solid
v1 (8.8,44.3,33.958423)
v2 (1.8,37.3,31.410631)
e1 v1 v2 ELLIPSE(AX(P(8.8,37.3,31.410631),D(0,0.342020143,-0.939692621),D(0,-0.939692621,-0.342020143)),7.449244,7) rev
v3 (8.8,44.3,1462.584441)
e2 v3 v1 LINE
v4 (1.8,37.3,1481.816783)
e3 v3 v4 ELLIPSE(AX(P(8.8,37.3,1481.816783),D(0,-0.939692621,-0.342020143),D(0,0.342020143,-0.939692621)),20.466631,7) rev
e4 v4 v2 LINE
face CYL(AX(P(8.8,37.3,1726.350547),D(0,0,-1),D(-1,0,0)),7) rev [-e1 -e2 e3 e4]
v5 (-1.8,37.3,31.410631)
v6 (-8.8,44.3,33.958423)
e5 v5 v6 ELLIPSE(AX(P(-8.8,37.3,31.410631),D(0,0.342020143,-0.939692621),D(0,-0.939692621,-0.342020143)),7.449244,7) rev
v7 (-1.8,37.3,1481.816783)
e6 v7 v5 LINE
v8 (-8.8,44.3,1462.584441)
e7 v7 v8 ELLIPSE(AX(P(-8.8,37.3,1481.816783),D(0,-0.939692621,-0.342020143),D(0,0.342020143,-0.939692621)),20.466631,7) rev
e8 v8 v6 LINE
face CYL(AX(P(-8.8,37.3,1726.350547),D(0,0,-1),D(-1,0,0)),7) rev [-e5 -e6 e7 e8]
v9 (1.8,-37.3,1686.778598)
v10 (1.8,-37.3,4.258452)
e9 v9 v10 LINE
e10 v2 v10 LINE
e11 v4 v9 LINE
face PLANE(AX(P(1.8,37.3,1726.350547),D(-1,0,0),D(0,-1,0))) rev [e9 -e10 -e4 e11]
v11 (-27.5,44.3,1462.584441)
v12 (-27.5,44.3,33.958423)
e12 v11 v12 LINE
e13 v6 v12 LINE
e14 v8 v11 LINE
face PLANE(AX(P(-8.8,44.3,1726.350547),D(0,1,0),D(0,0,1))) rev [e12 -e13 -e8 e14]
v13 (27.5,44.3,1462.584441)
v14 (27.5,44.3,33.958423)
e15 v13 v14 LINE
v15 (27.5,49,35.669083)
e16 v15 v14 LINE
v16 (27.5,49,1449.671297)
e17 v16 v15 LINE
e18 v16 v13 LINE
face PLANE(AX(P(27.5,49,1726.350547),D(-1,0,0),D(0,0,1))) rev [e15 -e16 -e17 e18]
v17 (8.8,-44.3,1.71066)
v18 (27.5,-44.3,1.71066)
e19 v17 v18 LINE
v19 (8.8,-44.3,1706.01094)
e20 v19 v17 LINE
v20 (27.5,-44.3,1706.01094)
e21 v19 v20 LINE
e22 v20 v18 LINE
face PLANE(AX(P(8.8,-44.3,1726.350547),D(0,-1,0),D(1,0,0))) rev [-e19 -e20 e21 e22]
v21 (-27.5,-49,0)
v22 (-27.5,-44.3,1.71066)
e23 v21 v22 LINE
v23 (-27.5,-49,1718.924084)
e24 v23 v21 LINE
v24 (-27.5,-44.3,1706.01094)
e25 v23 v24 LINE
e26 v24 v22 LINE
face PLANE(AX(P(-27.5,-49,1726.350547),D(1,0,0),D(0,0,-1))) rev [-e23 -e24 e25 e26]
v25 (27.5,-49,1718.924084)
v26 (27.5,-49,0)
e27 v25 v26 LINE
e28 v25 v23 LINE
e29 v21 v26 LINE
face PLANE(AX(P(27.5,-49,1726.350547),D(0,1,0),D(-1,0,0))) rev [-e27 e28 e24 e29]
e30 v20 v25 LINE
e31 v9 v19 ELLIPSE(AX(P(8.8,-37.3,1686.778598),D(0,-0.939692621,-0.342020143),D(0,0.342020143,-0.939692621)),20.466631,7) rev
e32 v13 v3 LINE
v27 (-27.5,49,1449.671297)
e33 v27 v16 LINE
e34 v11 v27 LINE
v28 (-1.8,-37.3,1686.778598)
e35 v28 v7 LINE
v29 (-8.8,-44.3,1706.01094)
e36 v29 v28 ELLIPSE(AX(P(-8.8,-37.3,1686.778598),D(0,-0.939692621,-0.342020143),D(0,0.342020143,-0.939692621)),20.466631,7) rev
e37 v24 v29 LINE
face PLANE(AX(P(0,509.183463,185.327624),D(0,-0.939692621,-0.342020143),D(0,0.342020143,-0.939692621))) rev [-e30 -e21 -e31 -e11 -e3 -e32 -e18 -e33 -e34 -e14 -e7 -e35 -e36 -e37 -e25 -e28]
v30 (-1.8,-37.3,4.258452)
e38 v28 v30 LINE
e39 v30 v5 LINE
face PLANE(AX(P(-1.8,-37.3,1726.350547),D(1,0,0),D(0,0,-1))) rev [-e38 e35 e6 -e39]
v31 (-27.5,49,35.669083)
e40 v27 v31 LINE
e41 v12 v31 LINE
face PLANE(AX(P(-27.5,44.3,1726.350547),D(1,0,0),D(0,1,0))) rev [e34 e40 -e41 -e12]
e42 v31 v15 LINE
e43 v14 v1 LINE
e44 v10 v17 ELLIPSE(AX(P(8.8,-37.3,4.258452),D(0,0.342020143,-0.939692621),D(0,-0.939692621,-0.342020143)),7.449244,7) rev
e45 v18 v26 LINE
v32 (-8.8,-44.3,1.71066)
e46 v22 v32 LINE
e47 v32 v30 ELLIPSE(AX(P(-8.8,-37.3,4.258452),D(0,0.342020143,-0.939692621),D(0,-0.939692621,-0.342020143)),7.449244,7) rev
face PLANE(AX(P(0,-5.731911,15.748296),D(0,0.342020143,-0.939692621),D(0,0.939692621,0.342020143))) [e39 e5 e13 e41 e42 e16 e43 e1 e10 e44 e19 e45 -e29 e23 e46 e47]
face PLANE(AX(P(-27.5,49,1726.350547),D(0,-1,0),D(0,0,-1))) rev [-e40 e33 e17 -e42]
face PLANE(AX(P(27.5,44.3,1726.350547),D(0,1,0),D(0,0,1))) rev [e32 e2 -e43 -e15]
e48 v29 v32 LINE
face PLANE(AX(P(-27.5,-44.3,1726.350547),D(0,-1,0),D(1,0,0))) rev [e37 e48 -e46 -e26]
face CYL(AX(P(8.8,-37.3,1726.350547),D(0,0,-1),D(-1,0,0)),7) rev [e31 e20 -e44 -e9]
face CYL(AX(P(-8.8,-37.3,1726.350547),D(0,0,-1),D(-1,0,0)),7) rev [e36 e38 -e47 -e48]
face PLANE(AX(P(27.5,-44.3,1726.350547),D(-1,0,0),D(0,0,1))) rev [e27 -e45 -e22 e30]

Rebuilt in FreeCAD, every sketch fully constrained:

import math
import FreeCAD as App
import Part
import Sketcher
Q = App.Units.Quantity


def add_polygon(sketch, points):
    """Adds a closed chain of lines whose ends are joined by coincident constraints."""
    first, n = sketch.GeometryCount, len(points)
    for a, b in zip(points, points[1:] + points[:1]):
        sketch.addGeometry(Part.LineSegment(App.Vector(*a, 0), App.Vector(*b, 0)), False)
    for i in range(n):
        sketch.addConstraint(Sketcher.Constraint("Coincident", first + i, 2, first + (i + 1) % n, 1))

doc = App.newDocument("Part")
body = doc.addObject("PartDesign::Body", "Body")

# Sketch on XY plane
sketch1 = body.newObject("Sketcher::SketchObject", "Sketch")
sketch1.AttachmentSupport = (doc.getObject("XY_Plane"), [""])
sketch1.MapMode = "FlatFace"
sketch1.addGeometry(Part.LineSegment(App.Vector(27.5, 49, 0), App.Vector(-27.5, 49, 0)), False)
sketch1.addGeometry(Part.LineSegment(App.Vector(-27.5, 49, 0), App.Vector(-27.5, 44.3, 0)), False)
sketch1.addGeometry(Part.LineSegment(App.Vector(-27.5, 44.3, 0), App.Vector(-8.8, 44.3, 0)), False)
sketch1.addGeometry(Part.ArcOfCircle(Part.Circle(App.Vector(-8.8, 37.3, 0), App.Vector(0, 0, 1), 7), math.radians(0), math.radians(90)), False)
sketch1.addGeometry(Part.LineSegment(App.Vector(-1.8, 37.3, 0), App.Vector(-1.8, -37.3, 0)), False)
sketch1.addGeometry(Part.ArcOfCircle(Part.Circle(App.Vector(-8.8, -37.3, 0), App.Vector(0, 0, 1), 7), math.radians(-90), math.radians(0)), False)
sketch1.addGeometry(Part.LineSegment(App.Vector(-8.8, -44.3, 0), App.Vector(-27.5, -44.3, 0)), False)
sketch1.addGeometry(Part.LineSegment(App.Vector(-27.5, -44.3, 0), App.Vector(-27.5, -49, 0)), False)
sketch1.addGeometry(Part.LineSegment(App.Vector(-27.5, -49, 0), App.Vector(27.5, -49, 0)), False)
sketch1.addGeometry(Part.LineSegment(App.Vector(27.5, -49, 0), App.Vector(27.5, -44.3, 0)), False)
sketch1.addGeometry(Part.LineSegment(App.Vector(27.5, -44.3, 0), App.Vector(8.8, -44.3, 0)), False)
sketch1.addGeometry(Part.ArcOfCircle(Part.Circle(App.Vector(8.8, -37.3, 0), App.Vector(0, 0, 1), 7), math.radians(-180), math.radians(-90)), False)
sketch1.addGeometry(Part.LineSegment(App.Vector(1.8, -37.3, 0), App.Vector(1.8, 37.3, 0)), False)
sketch1.addGeometry(Part.ArcOfCircle(Part.Circle(App.Vector(8.8, 37.3, 0), App.Vector(0, 0, 1), 7), math.radians(90), math.radians(180)), False)
sketch1.addGeometry(Part.LineSegment(App.Vector(8.8, 44.3, 0), App.Vector(27.5, 44.3, 0)), False)
sketch1.addGeometry(Part.LineSegment(App.Vector(27.5, 44.3, 0), App.Vector(27.5, 49, 0)), False)
sketch1.addConstraint(Sketcher.Constraint("Coincident", 0, 2, 1, 1))
sketch1.addConstraint(Sketcher.Constraint("Coincident", 1, 2, 2, 1))
sketch1.addConstraint(Sketcher.Constraint("Tangent", 2, 2, 3, 2))
sketch1.addConstraint(Sketcher.Constraint("Tangent", 3, 1, 4, 1))
sketch1.addConstraint(Sketcher.Constraint("Tangent", 4, 2, 5, 2))
sketch1.addConstraint(Sketcher.Constraint("Tangent", 5, 1, 6, 1))
sketch1.addConstraint(Sketcher.Constraint("Coincident", 6, 2, 7, 1))
sketch1.addConstraint(Sketcher.Constraint("Coincident", 7, 2, 8, 1))
sketch1.addConstraint(Sketcher.Constraint("Coincident", 8, 2, 9, 1))
sketch1.addConstraint(Sketcher.Constraint("Coincident", 9, 2, 10, 1))
sketch1.addConstraint(Sketcher.Constraint("Tangent", 10, 2, 11, 2))
sketch1.addConstraint(Sketcher.Constraint("Tangent", 11, 1, 12, 1))
sketch1.addConstraint(Sketcher.Constraint("Tangent", 12, 2, 13, 2))
sketch1.addConstraint(Sketcher.Constraint("Tangent", 13, 1, 14, 1))
sketch1.addConstraint(Sketcher.Constraint("Coincident", 14, 2, 15, 1))
sketch1.addConstraint(Sketcher.Constraint("Coincident", 15, 2, 0, 1))
sketch1.addConstraint(Sketcher.Constraint("Horizontal", 0))
sketch1.addConstraint(Sketcher.Constraint("Vertical", 1))
sketch1.addConstraint(Sketcher.Constraint("Horizontal", 2))
sketch1.addConstraint(Sketcher.Constraint("Vertical", 4))
sketch1.addConstraint(Sketcher.Constraint("Horizontal", 6))
sketch1.addConstraint(Sketcher.Constraint("Vertical", 7))
sketch1.addConstraint(Sketcher.Constraint("Horizontal", 8))
sketch1.addConstraint(Sketcher.Constraint("Vertical", 9))
sketch1.addConstraint(Sketcher.Constraint("Horizontal", 10))
sketch1.addConstraint(Sketcher.Constraint("Vertical", 12))
sketch1.addConstraint(Sketcher.Constraint("Horizontal", 14))
sketch1.addConstraint(Sketcher.Constraint("Vertical", 15))
sketch1.addConstraint(Sketcher.Constraint("Equal", 3, 5))
sketch1.addConstraint(Sketcher.Constraint("Equal", 5, 11))
sketch1.addConstraint(Sketcher.Constraint("Equal", 11, 13))
sketch1.addConstraint(Sketcher.Constraint("Symmetric", 3, 3, 11, 3, -1, 1))
sketch1.addConstraint(Sketcher.Constraint("Symmetric", 0, 2, 8, 2, -1, 1))
sketch1.addConstraint(Sketcher.Constraint("Symmetric", 6, 2, 14, 2, -1, 1))
sketch1.addConstraint(Sketcher.Constraint("Symmetric", 6, 2, 9, 2, -2))
sketch1.addConstraint(Sketcher.Constraint("Radius", 3, Q("7 mm")))
sketch1.addConstraint(Sketcher.Constraint("DistanceX", 0, 2, 0, 1, Q("55 mm")))
sketch1.addConstraint(Sketcher.Constraint("DistanceX", 2, 1, 2, 2, Q("18.7 mm")))
sketch1.addConstraint(Sketcher.Constraint("DistanceY", 1, 2, 1, 1, Q("4.7 mm")))
sketch1.addConstraint(Sketcher.Constraint("DistanceY", 4, 2, 4, 1, Q("74.6 mm")))
pad1 = body.newObject("PartDesign::Pad", "Pad")
pad1.Profile = sketch1
pad1.Length = 1726.350547

# Sketch on an angled plane
sketch2 = body.newObject("Sketcher::SketchObject", "Sketch001")
sketch2.Placement = App.Placement(App.Vector(0, -5.731911, 15.748296), App.Rotation(App.Vector(1, 0, 0), App.Vector(0, 0.939692621, 0.342020143), App.Vector(0, -0.342020143, 0.939692621), "ZXY"))
add_polygon(sketch2, [(-105.851229, 254.824321), (-105.851229, -228.762606), (105.851229, -228.762606), (105.851229, 254.824321)])  # lines 0-3
sketch2.addConstraint(Sketcher.Constraint("Vertical", 0))
sketch2.addConstraint(Sketcher.Constraint("Horizontal", 1))
sketch2.addConstraint(Sketcher.Constraint("Vertical", 2))
sketch2.addConstraint(Sketcher.Constraint("Horizontal", 3))
sketch2.addConstraint(Sketcher.Constraint("DistanceX", 1, 1, 1, 2, Q("211.702459 mm")))
sketch2.addConstraint(Sketcher.Constraint("DistanceY", 0, 2, 0, 1, Q("483.586927 mm")))
sketch2.addConstraint(Sketcher.Constraint("DistanceX", 0, 2, -1, 1, Q("105.851229 mm")))
sketch2.addConstraint(Sketcher.Constraint("DistanceY", -1, 1, 2, 2, Q("254.824321 mm")))
pocket1 = body.newObject("PartDesign::Pocket", "Pocket")
pocket1.Profile = sketch2
pocket1.Type = "ThroughAll"

# Sketch on an angled plane
sketch3 = body.newObject("Sketcher::SketchObject", "Sketch002")
sketch3.Placement = App.Placement(App.Vector(0, 511.570282, 186.196355), App.Rotation(App.Vector(1, 0, 0), App.Vector(0, 0.342020143, -0.939692621), App.Vector(0, 0.939692621, 0.342020143), "ZXY"))
add_polygon(sketch3, [(-65.584743, -906.029641), (-65.584743, -1763.451324), (135.027078, -1763.451324), (135.027078, -906.029641)])  # lines 0-3
sketch3.addConstraint(Sketcher.Constraint("Vertical", 0))
sketch3.addConstraint(Sketcher.Constraint("Horizontal", 1))
sketch3.addConstraint(Sketcher.Constraint("Vertical", 2))
sketch3.addConstraint(Sketcher.Constraint("Horizontal", 3))
sketch3.addConstraint(Sketcher.Constraint("DistanceX", 1, 1, 1, 2, Q("200.611821 mm")))
sketch3.addConstraint(Sketcher.Constraint("DistanceY", 0, 2, 0, 1, Q("857.421684 mm")))
sketch3.addConstraint(Sketcher.Constraint("DistanceX", -1, 1, 1, 2, Q("135.027078 mm")))
sketch3.addConstraint(Sketcher.Constraint("DistanceY", 2, 2, -1, 1, Q("906.029641 mm")))
pocket2 = body.newObject("PartDesign::Pocket", "Pocket001")
pocket2.Profile = sketch3
pocket2.Type = "TwoLengths"
pocket2.Length = 93.089877
pocket2.Length2 = 2.54
pocket2.Reversed = True

doc.recompute()
